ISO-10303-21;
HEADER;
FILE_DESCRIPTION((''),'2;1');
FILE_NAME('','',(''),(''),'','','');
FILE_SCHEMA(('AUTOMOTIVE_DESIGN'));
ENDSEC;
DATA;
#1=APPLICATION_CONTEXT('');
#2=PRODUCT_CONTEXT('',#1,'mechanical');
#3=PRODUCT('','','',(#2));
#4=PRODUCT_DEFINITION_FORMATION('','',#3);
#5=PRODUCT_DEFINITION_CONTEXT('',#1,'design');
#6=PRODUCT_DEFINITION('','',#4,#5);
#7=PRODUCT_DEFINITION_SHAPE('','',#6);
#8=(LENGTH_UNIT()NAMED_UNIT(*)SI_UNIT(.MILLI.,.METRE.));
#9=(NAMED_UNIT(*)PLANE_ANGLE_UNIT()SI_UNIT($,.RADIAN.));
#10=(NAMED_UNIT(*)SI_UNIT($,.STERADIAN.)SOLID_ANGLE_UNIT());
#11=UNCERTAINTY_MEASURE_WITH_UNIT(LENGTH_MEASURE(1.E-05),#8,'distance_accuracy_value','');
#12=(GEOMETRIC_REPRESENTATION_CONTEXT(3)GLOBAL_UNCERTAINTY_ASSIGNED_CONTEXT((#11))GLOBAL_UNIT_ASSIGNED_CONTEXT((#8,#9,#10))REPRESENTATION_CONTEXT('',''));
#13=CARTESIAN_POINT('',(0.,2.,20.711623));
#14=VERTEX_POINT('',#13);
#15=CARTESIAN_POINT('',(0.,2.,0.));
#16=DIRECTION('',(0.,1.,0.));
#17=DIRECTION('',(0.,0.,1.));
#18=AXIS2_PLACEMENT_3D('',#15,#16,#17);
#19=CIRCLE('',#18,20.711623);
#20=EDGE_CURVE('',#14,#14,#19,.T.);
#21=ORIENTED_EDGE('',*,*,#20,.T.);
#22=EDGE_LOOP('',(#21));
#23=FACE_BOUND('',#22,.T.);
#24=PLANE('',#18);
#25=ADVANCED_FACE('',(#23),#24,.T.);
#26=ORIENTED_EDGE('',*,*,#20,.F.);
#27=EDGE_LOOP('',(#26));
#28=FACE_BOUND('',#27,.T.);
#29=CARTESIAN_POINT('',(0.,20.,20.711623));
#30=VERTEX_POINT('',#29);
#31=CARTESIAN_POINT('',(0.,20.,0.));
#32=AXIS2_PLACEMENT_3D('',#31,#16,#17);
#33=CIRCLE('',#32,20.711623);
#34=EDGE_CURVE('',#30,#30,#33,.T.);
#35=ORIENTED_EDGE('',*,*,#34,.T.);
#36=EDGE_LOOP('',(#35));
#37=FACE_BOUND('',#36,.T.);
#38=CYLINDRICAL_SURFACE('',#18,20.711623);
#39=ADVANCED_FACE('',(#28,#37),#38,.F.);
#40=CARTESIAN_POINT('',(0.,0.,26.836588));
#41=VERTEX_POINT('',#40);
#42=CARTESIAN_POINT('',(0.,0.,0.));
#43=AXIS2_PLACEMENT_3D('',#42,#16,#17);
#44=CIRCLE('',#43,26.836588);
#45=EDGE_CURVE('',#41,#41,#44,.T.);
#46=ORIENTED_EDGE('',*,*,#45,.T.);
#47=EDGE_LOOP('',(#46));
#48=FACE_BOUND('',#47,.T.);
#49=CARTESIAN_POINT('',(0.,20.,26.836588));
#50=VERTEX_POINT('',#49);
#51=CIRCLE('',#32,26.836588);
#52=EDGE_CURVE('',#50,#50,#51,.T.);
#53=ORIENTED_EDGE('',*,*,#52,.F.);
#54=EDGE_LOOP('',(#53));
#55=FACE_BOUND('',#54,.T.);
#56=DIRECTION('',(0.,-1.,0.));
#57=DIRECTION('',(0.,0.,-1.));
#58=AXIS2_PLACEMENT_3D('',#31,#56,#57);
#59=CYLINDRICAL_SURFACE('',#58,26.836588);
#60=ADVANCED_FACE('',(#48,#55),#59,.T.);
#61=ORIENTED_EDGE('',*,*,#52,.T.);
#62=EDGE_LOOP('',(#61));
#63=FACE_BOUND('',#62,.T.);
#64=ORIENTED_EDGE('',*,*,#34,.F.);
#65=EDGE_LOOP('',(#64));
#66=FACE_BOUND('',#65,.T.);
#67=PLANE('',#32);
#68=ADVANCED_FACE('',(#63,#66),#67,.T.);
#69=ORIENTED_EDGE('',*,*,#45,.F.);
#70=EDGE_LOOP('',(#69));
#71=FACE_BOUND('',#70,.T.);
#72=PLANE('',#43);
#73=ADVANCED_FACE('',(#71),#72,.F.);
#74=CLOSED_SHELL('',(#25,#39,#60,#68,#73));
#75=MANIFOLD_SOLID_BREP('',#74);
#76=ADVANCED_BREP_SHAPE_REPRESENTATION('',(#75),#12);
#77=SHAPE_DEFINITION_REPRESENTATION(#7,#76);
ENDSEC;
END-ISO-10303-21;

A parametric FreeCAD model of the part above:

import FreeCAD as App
import Part
import Sketcher
Q = App.Units.Quantity

doc = App.newDocument("Part")
params = doc.addObject("Spreadsheet::Sheet", "Params")
for row, (alias, value) in enumerate([
    ("pad1_length", "20 mm"),
    ("pocket1_length", "18 mm"),
], start=1):
    params.set(f"A{row}", alias)
    params.set(f"B{row}", "=" + value)
    params.setAlias(f"B{row}", alias)

body = doc.addObject("PartDesign::Body", "Body")

# Sketch on XZ plane
sketch1 = body.newObject("Sketcher::SketchObject", "Sketch")
sketch1.AttachmentSupport = (doc.getObject("XZ_Plane"), [""])
sketch1.MapMode = "FlatFace"
sketch1.addGeometry(Part.Circle(App.Vector(0, 0, 0), App.Vector(0, 0, 1), 26.836588), False)
sketch1.addConstraint([
    Sketcher.Constraint("Coincident", 0, 3, -1, 1),
    Sketcher.Constraint("Diameter", 0, Q("53.673176 mm")),
])
pad1 = body.newObject("PartDesign::Pad", "Pad")
pad1.Profile = sketch1
pad1.setExpression("Length", "Params.pad1_length")
pad1.Reversed = True

# Sketch on XZ plane
sketch2 = body.newObject("Sketcher::SketchObject", "Sketch001")
sketch2.AttachmentSupport = (doc.getObject("XZ_Plane"), [""])
sketch2.MapMode = "FlatFace"
sketch2.AttachmentOffset = App.Placement(App.Vector(0, 0, -20), App.Rotation())
sketch2.addGeometry(Part.Circle(App.Vector(0, 0, 0), App.Vector(0, 0, 1), 20.711623), False)
sketch2.addConstraint([
    Sketcher.Constraint("Coincident", 0, 3, -1, 1),
    Sketcher.Constraint("Diameter", 0, Q("41.423247 mm")),
])
pocket1 = body.newObject("PartDesign::Pocket", "Pocket")
pocket1.Profile = sketch2
pocket1.setExpression("Length", "Params.pocket1_length")
pocket1.Reversed = True

doc.recompute()
